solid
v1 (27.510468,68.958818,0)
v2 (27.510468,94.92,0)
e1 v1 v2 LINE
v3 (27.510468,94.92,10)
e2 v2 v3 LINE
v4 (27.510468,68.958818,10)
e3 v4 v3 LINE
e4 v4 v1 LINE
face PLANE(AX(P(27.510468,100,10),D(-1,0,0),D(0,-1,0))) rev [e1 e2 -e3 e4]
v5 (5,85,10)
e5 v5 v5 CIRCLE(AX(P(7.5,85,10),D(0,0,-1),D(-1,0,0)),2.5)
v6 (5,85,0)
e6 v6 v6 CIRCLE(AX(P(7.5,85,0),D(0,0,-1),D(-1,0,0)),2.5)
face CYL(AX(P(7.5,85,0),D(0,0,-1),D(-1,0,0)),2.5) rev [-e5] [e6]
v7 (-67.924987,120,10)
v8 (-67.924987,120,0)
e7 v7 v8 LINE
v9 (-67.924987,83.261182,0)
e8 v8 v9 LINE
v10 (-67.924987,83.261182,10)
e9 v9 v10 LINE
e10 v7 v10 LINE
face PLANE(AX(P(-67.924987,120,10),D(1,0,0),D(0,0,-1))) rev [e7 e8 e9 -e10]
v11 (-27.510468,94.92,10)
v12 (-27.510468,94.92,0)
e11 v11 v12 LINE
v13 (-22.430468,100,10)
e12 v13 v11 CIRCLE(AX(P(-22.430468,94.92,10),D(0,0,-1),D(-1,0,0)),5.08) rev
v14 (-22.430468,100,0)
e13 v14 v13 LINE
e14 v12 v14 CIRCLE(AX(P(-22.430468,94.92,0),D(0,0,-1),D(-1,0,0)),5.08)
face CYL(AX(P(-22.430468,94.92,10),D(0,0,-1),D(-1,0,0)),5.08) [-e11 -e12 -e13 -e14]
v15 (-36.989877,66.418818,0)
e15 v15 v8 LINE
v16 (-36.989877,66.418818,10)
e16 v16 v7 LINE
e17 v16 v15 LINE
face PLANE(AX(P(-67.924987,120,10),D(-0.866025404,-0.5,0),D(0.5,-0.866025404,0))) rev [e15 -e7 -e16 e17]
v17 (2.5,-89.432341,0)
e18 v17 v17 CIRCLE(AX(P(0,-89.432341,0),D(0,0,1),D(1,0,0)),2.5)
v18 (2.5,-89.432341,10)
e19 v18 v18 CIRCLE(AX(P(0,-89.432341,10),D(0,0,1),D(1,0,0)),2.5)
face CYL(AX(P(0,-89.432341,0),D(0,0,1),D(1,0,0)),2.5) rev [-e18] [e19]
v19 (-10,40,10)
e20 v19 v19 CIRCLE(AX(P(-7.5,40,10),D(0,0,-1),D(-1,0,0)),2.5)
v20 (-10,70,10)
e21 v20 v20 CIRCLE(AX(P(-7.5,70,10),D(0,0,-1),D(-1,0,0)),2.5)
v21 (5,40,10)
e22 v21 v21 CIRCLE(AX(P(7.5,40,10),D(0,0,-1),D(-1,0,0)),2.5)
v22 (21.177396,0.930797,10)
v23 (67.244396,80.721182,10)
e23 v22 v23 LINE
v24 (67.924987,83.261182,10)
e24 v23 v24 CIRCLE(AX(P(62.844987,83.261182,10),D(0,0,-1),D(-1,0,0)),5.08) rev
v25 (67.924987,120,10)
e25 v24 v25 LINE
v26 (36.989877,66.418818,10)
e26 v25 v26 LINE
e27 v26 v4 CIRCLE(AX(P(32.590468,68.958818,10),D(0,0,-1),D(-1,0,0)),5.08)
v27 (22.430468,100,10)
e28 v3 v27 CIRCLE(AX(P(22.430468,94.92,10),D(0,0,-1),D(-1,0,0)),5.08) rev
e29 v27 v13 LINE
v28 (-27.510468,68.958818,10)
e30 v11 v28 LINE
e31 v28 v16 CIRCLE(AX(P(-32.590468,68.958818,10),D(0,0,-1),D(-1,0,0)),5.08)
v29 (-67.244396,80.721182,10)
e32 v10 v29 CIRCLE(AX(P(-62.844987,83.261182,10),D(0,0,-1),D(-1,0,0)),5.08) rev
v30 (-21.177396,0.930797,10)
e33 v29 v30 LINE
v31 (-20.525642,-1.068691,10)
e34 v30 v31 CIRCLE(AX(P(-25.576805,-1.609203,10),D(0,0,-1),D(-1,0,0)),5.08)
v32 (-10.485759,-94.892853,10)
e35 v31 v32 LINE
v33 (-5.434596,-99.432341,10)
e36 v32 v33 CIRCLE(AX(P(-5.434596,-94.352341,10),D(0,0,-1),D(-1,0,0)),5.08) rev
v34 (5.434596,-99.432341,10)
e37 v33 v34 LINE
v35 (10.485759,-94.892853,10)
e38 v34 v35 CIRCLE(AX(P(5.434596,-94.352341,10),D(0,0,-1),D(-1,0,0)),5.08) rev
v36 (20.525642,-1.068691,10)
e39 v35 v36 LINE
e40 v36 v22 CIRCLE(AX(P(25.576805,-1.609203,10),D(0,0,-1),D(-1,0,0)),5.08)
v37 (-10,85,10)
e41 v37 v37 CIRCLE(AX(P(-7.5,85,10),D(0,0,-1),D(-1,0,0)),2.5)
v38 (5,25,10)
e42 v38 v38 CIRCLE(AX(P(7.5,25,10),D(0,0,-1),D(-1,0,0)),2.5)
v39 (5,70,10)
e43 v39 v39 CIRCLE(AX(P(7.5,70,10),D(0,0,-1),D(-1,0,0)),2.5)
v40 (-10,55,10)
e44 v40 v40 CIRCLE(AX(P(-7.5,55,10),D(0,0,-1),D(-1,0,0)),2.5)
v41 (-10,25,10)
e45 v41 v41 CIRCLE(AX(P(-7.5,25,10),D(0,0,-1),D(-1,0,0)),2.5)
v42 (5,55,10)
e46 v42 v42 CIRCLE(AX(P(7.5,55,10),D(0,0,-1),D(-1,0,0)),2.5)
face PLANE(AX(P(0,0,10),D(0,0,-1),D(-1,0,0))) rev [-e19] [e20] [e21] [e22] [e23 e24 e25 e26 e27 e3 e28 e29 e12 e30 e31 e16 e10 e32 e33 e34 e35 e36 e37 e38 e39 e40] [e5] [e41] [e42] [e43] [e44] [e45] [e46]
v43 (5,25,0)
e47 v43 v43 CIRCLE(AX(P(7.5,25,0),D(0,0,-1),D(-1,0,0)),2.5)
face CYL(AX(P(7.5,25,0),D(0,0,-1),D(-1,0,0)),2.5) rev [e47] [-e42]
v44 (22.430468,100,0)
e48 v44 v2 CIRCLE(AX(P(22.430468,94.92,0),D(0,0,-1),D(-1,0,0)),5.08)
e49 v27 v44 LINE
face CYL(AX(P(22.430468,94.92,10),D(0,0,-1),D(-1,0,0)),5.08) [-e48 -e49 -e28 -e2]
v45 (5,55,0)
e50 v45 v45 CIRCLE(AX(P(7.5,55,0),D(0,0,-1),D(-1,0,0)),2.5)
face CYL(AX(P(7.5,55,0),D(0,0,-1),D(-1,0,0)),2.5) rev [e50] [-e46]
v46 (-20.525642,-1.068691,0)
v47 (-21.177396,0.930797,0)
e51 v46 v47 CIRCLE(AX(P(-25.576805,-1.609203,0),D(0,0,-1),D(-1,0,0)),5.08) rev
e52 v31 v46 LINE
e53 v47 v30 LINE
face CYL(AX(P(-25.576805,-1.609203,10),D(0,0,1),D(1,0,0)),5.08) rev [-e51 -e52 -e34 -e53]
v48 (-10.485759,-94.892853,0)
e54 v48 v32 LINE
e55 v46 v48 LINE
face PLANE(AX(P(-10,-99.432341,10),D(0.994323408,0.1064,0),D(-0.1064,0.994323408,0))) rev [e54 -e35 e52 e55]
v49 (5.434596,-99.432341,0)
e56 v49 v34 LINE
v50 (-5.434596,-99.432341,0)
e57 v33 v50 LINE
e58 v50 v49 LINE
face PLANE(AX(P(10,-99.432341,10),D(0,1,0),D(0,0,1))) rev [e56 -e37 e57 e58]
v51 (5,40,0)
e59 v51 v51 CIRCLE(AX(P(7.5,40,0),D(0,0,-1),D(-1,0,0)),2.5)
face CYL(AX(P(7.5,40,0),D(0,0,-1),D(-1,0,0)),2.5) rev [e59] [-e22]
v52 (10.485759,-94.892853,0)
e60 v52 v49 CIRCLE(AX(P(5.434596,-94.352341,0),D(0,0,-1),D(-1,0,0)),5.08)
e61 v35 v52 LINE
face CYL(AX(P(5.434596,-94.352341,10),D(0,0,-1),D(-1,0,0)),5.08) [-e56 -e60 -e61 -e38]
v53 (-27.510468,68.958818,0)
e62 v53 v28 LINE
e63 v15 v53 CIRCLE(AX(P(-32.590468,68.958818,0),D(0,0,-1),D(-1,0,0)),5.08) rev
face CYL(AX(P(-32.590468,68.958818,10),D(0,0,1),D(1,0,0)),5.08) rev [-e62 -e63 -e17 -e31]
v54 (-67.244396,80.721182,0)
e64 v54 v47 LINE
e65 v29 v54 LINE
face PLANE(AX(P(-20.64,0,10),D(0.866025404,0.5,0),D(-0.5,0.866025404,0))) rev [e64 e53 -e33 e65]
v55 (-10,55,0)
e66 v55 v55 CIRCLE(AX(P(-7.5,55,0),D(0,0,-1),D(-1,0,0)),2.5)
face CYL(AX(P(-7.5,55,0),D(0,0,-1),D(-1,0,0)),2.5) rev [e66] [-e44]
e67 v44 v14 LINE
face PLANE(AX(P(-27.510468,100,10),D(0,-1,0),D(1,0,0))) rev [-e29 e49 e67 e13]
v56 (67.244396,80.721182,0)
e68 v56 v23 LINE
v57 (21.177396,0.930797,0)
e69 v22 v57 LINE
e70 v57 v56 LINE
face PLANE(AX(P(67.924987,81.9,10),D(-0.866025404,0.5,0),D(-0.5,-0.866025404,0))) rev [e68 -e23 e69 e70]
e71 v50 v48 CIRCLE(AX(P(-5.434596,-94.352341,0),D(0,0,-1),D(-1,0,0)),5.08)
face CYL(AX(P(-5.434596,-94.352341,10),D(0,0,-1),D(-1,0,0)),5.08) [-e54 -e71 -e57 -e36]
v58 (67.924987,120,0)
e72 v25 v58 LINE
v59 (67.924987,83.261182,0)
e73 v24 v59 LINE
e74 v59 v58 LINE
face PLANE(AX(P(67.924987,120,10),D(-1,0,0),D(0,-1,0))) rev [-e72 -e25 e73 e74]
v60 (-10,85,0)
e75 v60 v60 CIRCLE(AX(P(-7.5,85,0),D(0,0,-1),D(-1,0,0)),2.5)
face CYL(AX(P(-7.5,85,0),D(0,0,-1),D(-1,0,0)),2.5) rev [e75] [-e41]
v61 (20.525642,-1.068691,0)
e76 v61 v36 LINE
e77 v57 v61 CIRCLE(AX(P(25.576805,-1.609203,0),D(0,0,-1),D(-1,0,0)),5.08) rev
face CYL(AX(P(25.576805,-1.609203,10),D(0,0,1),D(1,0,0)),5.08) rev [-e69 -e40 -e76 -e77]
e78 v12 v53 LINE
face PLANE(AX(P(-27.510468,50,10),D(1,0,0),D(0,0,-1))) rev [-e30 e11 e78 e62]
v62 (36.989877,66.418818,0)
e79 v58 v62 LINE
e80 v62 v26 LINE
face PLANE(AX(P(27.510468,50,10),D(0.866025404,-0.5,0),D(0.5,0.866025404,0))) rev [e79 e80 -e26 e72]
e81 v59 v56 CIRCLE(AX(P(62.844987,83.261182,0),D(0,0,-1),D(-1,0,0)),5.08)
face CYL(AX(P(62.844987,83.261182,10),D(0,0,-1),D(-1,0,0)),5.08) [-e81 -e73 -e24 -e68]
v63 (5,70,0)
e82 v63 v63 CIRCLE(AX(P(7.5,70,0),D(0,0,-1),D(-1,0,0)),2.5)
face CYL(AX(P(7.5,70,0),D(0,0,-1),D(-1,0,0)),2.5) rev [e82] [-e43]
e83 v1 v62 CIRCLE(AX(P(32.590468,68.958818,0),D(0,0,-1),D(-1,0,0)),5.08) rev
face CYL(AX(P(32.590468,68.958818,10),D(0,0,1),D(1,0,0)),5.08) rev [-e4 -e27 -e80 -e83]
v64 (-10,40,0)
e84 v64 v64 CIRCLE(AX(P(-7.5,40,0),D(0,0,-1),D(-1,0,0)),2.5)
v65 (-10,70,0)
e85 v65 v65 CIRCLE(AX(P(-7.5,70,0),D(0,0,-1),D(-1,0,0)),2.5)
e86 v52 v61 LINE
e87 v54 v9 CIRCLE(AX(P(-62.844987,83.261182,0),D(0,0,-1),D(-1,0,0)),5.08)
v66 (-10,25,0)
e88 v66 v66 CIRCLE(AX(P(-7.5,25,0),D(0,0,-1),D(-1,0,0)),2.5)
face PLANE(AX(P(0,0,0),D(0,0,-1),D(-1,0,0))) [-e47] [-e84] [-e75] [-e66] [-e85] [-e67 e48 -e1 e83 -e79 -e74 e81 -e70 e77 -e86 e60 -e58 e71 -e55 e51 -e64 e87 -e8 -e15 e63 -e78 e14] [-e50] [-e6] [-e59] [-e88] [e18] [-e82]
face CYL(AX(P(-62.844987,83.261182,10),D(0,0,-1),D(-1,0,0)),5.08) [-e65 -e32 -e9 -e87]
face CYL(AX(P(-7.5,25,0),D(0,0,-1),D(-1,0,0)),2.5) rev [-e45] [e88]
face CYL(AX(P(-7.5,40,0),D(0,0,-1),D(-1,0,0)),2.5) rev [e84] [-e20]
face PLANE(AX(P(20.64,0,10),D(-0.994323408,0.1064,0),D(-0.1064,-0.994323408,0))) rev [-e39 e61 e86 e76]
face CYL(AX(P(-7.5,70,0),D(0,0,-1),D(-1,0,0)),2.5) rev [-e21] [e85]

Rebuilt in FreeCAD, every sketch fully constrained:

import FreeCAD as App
import Part
import Sketcher
Q = App.Units.Quantity


def edges_at(feature, points):
    """Names of the edges that pass closest to the given points."""
    edges = feature.Shape.Edges
    near = lambda p: min(range(len(edges)), key=lambda i: edges[i].distToShape(Part.Vertex(*p))[0])
    return sorted({f"Edge{near(p) + 1}" for p in points})


def add_polygon(sketch, points):
    """Adds a closed chain of lines whose ends are joined by coincident constraints."""
    first, n = sketch.GeometryCount, len(points)
    for a, b in zip(points, points[1:] + points[:1]):
        sketch.addGeometry(Part.LineSegment(App.Vector(*a, 0), App.Vector(*b, 0)), False)
    for i in range(n):
        sketch.addConstraint(Sketcher.Constraint("Coincident", first + i, 2, first + (i + 1) % n, 1))

doc = App.newDocument("Part")
params = doc.addObject("Spreadsheet::Sheet", "Params")
for row, (alias, value) in enumerate([
    ("sketch1_width", "20 mm"),
    ("sketch1_height", "50 mm"),
    ("sketch1_length", "100 mm"),
    ("sketch1_height2", "38.1 mm"),
    ("pad1_length", "10 mm"),
    ("fillet_radius", "5.08 mm"),
    ("sketch2_diameter", "5 mm"),
    ("hole_diameter", "5 mm"),
    ("sketch3_diameter", "5 mm"),
    ("linearpattern_pitch", "15 mm"),
], start=1):
    params.set(f"A{row}", alias)
    params.set(f"B{row}", "=" + value)
    params.setAlias(f"B{row}", alias)

body = doc.addObject("PartDesign::Body", "Body")

# Sketch on XY plane
sketch1 = body.newObject("Sketcher::SketchObject", "Sketch")
sketch1.AttachmentSupport = (doc.getObject("XY_Plane"), [""])
sketch1.MapMode = "FlatFace"
add_polygon(sketch1, [(68, 120), (28, 50), (28, 100), (-28, 100), (-28, 50), (-68, 120), (-68, 82), (-21, 0), (-10, -99), (10, -99), (21, 0), (68, 82)])  # lines 0-11
sketch1.addConstraint([
    Sketcher.Constraint("Vertical", 1),
    Sketcher.Constraint("Horizontal", 2),
    Sketcher.Constraint("Vertical", 3),
    Sketcher.Constraint("Vertical", 5),
    Sketcher.Constraint("Horizontal", 8),
    Sketcher.Constraint("Vertical", 11),
    Sketcher.Constraint("Symmetric", 6, 2, 9, 2, -1, 1),
    Sketcher.Constraint("Symmetric", 0, 2, 3, 2, -2),
    Sketcher.Constraint("Symmetric", 5, 2, 10, 2, -2),
    Sketcher.Constraint("PointOnObject", 6, 2, -1),
    Sketcher.Constraint("Parallel", 4, 6),
    Sketcher.Constraint("Parallel", 0, 10),
    Sketcher.Constraint("Equal", 7, 9),
    Sketcher.Constraint("DistanceX", 8, 1, 8, 2, Q("20 mm")),
    Sketcher.Constraint("DistanceY", 1, 1, 1, 2, Q("50 mm")),
    Sketcher.Constraint("Angle", 0, Q("-120 deg")),
    Sketcher.Constraint("Distance", 7, Q("100 mm")),
    Sketcher.Constraint("DistanceY", 5, 2, 5, 1, Q("38.1 mm")),
    Sketcher.Constraint("DistanceY", -1, 1, 0, 2, Q("50 mm")),
    Sketcher.Constraint("DistanceY", -1, 1, 4, 2, Q("120 mm")),
    Sketcher.Constraint("DistanceX", 6, 2, -1, 1, Q("20.64 mm")),
])
sketch1.setExpression("Constraints[25]", "Params.sketch1_width")
sketch1.setExpression("Constraints[26]", "Params.sketch1_height")
sketch1.setExpression("Constraints[28]", "Params.sketch1_length")
sketch1.setExpression("Constraints[29]", "Params.sketch1_height2")
pad1 = body.newObject("PartDesign::Pad", "Pad")
pad1.Profile = sketch1
pad1.setExpression("Length", "Params.pad1_length")
doc.recompute()

fillet = body.newObject("PartDesign::Fillet", "Fillet")
fillet.Base = (pad1, edges_at(pad1, [
    (-27.51, 100, 5),
    (27.51, 100, 5),
    (27.51, 50, 5),
    (67.925, 81.9, 5),
    (20.64, 0, 5),
    (10, -99.432, 5),
    (-10, -99.432, 5),
    (-20.64, 0, 5),
    (-67.925, 81.9, 5),
    (-27.51, 50, 5),
]))
fillet.setExpression("Radius", "Params.fillet_radius")

# Sketch on XY plane
sketch2 = body.newObject("Sketcher::SketchObject", "Sketch001")
sketch2.AttachmentSupport = (doc.getObject("XY_Plane"), [""])
sketch2.MapMode = "FlatFace"
sketch2.addGeometry([
    Part.Circle(App.Vector(-7.5, 25, 0), App.Vector(0, 0, 1), 2.5),
    Part.Circle(App.Vector(7.5, 25, 0), App.Vector(0, 0, 1), 2.5),
], False)
sketch2.addConstraint([
    Sketcher.Constraint("Equal", 0, 1),
    Sketcher.Constraint("Symmetric", 0, 3, 1, 3, -2),
    Sketcher.Constraint("Diameter", 0, Q("5 mm")),
    Sketcher.Constraint("DistanceY", -1, 1, 0, 3, Q("25 mm")),
    Sketcher.Constraint("DistanceX", 0, 3, 1, 3, Q("15 mm")),
])
sketch2.setExpression("Constraints[2]", "Params.sketch2_diameter")
doc.recompute()
hole = body.newObject("PartDesign::Hole", "Hole")
hole.Profile = sketch2
hole.ThreadType = "None"
hole.setExpression("Diameter", "Params.hole_diameter")
hole.DepthType = "ThroughAll"
hole.Reversed = True

# Sketch on XY plane
sketch3 = body.newObject("Sketcher::SketchObject", "Sketch002")
sketch3.AttachmentSupport = (doc.getObject("XY_Plane"), [""])
sketch3.MapMode = "FlatFace"
sketch3.AttachmentOffset = App.Placement(App.Vector(0, 0, 10), App.Rotation())
sketch3.addGeometry(Part.Circle(App.Vector(0, -89.4, 0), App.Vector(0, 0, 1), 2.5), False)
sketch3.addConstraint([
    Sketcher.Constraint("PointOnObject", 0, 3, -2),
    Sketcher.Constraint("Diameter", 0, Q("5 mm")),
    Sketcher.Constraint("DistanceY", 0, 3, -1, 1, Q("89.432341 mm")),
])
sketch3.setExpression("Constraints[1]", "Params.sketch3_diameter")
pocket1 = body.newObject("PartDesign::Pocket", "Pocket")
pocket1.Profile = sketch3
pocket1.Type = "ThroughAll"
doc.recompute()

linearpattern = body.newObject("PartDesign::LinearPattern", "LinearPattern")
linearpattern.Originals = [hole]
linearpattern.Direction = (doc.getObject("Y_Axis"), [""])
linearpattern.Mode = "offset"
linearpattern.setExpression("Offset", "Params.linearpattern_pitch")
linearpattern.Occurrences = 5
body.Tip = linearpattern

doc.recompute()
